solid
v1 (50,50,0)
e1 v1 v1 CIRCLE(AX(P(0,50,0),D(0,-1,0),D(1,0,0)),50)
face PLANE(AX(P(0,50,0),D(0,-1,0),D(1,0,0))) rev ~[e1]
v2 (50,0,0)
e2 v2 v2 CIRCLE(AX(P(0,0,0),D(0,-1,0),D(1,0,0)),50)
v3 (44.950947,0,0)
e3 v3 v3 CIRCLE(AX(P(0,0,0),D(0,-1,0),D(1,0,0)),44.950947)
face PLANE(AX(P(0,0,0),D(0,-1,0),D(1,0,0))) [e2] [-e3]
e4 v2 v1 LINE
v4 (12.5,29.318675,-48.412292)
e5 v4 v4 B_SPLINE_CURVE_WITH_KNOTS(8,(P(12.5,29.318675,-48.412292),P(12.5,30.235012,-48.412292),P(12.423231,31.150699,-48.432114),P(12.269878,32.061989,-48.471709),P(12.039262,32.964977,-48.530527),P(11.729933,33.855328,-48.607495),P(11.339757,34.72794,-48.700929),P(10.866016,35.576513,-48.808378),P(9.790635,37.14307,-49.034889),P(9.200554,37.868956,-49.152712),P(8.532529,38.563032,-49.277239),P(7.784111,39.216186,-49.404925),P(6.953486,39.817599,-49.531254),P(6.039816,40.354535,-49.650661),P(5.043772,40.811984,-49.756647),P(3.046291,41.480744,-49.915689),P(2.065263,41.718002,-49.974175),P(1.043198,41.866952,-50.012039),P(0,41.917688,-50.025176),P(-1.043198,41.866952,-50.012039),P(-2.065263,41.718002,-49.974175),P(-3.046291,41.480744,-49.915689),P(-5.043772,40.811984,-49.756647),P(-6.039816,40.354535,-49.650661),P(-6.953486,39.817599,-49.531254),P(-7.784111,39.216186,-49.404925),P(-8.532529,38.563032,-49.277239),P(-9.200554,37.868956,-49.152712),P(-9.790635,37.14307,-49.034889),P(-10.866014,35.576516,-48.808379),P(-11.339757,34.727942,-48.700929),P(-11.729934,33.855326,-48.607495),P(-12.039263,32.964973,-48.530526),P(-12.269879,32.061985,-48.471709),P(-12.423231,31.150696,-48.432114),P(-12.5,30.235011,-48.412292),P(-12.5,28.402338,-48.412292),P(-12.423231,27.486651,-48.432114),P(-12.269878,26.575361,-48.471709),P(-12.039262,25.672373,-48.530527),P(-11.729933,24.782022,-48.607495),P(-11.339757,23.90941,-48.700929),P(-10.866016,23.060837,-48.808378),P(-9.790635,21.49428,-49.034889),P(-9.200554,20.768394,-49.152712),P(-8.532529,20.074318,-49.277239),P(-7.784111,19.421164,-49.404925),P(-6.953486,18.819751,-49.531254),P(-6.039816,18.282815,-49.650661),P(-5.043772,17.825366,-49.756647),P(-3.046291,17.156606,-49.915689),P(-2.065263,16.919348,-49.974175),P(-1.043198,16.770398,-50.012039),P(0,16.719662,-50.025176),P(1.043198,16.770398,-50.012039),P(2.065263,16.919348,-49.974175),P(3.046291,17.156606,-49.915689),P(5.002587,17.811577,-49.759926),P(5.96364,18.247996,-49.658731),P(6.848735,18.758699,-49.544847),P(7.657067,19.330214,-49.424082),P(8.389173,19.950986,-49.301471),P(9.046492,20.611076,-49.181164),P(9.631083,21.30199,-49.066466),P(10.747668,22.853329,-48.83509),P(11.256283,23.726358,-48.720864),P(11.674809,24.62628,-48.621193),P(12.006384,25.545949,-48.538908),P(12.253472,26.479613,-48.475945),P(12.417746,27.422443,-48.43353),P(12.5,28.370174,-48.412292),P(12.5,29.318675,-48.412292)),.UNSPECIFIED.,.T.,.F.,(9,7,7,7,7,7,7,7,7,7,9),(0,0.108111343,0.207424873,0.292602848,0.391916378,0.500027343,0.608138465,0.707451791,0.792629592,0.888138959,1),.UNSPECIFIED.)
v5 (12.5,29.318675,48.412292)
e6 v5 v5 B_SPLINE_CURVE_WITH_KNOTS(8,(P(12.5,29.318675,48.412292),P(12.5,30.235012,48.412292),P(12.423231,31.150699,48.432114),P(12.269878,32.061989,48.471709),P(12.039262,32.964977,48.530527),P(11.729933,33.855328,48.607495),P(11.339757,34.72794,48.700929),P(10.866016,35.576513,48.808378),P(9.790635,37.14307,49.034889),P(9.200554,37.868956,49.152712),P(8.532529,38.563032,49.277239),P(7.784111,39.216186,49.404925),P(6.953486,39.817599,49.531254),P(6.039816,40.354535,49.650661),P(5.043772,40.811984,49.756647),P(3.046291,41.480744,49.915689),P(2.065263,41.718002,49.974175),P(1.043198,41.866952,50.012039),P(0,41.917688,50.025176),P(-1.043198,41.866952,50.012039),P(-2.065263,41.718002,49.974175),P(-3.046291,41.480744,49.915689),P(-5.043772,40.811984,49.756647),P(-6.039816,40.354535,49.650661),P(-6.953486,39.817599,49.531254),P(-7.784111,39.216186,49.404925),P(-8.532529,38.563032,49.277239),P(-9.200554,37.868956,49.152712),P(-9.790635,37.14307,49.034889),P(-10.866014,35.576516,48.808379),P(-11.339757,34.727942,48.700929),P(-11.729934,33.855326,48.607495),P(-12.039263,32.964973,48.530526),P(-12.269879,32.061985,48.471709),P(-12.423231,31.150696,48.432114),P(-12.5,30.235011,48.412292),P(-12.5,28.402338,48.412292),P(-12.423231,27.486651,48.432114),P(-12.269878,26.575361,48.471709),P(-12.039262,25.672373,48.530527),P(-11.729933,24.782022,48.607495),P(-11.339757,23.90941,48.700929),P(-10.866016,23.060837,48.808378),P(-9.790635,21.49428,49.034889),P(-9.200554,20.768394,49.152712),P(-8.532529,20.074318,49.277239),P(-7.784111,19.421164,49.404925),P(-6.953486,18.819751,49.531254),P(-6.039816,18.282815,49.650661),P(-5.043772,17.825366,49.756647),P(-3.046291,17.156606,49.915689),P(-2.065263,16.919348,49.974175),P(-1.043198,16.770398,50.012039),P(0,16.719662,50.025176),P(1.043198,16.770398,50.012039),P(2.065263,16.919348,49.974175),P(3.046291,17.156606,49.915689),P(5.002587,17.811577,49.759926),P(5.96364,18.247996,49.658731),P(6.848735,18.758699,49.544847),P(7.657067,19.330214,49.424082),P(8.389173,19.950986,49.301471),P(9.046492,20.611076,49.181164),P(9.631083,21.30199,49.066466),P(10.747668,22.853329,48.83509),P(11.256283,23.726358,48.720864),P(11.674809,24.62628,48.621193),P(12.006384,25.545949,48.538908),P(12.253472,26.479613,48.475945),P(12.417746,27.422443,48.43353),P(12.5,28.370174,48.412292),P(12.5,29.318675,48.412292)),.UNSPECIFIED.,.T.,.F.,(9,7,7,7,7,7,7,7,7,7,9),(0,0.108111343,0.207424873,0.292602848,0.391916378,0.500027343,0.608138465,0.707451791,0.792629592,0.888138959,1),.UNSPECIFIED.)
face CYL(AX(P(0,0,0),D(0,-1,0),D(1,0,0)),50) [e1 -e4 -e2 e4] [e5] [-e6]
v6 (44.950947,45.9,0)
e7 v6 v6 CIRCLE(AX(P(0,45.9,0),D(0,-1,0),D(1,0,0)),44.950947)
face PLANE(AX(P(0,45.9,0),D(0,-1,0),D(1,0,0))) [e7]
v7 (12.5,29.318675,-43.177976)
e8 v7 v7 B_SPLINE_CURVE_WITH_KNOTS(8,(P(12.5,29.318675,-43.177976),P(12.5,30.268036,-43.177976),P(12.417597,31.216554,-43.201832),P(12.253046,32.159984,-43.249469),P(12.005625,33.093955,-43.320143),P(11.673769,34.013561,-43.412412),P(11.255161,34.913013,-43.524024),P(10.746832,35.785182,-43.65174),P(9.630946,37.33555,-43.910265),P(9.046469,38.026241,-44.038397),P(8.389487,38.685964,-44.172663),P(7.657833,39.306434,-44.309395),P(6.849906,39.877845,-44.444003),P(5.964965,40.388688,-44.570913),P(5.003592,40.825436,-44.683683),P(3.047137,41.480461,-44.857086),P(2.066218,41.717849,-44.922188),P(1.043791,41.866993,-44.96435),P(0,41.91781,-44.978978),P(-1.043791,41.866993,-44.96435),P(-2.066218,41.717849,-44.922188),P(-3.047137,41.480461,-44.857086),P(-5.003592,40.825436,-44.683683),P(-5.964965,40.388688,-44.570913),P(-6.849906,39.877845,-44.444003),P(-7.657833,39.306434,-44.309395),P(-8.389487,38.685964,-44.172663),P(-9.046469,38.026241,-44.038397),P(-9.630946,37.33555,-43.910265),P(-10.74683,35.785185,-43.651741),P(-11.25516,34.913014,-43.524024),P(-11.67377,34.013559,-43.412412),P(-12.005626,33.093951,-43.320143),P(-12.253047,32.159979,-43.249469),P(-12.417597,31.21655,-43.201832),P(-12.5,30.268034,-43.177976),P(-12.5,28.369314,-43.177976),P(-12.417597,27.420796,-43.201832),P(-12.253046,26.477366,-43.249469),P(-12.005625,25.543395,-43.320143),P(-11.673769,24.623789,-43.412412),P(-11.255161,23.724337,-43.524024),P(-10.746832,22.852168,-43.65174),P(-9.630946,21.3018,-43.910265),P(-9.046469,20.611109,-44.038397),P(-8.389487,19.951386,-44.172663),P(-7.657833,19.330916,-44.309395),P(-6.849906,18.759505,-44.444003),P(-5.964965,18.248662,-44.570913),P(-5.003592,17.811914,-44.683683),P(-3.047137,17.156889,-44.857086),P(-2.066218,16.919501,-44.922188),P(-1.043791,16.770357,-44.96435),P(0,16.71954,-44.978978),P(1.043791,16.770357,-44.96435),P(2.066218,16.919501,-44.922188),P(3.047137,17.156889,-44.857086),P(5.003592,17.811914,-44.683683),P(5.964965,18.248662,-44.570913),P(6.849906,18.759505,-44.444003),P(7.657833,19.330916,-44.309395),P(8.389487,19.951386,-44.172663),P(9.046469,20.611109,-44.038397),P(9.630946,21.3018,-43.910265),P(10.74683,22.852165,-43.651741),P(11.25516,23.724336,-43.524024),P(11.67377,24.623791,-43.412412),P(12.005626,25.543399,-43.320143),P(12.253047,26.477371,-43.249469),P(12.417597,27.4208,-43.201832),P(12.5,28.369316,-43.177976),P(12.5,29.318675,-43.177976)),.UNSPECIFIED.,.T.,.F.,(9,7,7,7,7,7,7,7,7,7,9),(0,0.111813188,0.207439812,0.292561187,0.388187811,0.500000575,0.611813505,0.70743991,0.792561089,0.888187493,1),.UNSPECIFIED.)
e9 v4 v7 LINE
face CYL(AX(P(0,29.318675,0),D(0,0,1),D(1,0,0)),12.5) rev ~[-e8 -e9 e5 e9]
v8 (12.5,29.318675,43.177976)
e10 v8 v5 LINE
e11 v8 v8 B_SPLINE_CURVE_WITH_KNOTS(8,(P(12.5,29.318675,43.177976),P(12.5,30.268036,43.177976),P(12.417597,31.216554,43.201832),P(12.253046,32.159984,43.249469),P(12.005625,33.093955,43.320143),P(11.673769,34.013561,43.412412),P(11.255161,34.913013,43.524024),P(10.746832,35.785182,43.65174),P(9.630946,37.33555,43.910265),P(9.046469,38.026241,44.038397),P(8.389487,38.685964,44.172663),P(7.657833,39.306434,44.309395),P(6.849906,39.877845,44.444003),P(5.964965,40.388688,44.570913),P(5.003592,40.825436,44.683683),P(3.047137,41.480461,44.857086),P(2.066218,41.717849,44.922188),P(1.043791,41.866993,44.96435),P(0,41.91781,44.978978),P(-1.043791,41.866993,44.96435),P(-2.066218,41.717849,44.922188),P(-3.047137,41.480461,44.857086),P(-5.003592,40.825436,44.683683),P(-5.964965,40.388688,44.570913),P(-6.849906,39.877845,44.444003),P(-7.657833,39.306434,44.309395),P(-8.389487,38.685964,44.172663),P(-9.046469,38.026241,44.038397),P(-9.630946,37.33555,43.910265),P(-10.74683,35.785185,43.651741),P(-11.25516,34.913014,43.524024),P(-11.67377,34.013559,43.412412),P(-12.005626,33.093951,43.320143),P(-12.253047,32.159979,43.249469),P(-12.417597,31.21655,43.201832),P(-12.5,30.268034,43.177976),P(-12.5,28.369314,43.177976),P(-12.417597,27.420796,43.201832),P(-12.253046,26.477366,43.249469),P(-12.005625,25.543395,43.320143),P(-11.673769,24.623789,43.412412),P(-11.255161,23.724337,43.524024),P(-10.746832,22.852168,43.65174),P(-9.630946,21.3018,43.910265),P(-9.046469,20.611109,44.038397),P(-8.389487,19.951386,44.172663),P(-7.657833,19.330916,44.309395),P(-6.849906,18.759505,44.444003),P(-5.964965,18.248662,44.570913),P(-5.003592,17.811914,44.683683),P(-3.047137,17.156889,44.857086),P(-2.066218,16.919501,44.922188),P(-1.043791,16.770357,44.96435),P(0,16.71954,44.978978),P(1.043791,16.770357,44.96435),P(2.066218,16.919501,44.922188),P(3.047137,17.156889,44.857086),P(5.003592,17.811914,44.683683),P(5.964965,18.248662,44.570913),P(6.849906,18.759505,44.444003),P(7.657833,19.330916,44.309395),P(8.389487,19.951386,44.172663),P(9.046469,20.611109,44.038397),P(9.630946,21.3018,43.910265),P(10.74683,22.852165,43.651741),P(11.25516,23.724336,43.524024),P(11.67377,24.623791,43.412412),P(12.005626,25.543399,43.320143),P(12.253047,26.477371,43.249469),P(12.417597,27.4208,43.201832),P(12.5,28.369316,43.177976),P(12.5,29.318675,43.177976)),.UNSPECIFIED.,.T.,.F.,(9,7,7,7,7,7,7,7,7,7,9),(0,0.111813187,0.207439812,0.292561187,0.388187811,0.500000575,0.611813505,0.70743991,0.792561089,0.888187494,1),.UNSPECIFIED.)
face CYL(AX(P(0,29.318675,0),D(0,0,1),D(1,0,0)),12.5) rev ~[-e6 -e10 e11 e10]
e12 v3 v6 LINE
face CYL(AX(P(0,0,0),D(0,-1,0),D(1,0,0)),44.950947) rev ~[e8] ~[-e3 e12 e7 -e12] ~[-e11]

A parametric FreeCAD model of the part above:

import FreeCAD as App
import Part
import Sketcher
from FreeCAD import Vector

doc = App.newDocument("Part")
body = doc.addObject("PartDesign::Body", "Body")

sketch1 = body.newObject("Sketcher::SketchObject", "Sketch")
sketch1.AttachmentSupport = (doc.getObject("XZ_Plane"), [""])
sketch1.MapMode = "FlatFace"
sketch1.addGeometry(Part.Circle(Vector(0, 0, 0), Vector(0, 0, 1), 50), False)
sketch1.addConstraint([
    Sketcher.Constraint("Coincident", 0, 3, -1, 1),
    Sketcher.Constraint("Diameter", 0, 100.0),
])
pad1 = body.newObject("PartDesign::Pad", "Pad")
pad1.Profile = sketch1
pad1.Length = 50
pad1.Reversed = True

sketch2 = body.newObject("Sketcher::SketchObject", "Sketch001")
sketch2.AttachmentSupport = (doc.getObject("XY_Plane"), [""])
sketch2.MapMode = "FlatFace"
sketch2.addGeometry(Part.Circle(Vector(0, 29, 0), Vector(0, 0, 1), 12), False)
sketch2.addConstraint([
    Sketcher.Constraint("PointOnObject", 0, 3, -2),
    Sketcher.Constraint("Diameter", 0, 25.0),
    Sketcher.Constraint("DistanceY", -1, 1, 0, 3, 29.318675),
])
pocket1 = body.newObject("PartDesign::Pocket", "Pocket")
pocket1.Profile = sketch2
pocket1.Length = 208.4
pocket1.Midplane = True

sketch3 = body.newObject("Sketcher::SketchObject", "Sketch002")
sketch3.AttachmentSupport = (doc.getObject("XZ_Plane"), [""])
sketch3.MapMode = "FlatFace"
sketch3.addGeometry(Part.Circle(Vector(0, 0, 0), Vector(0, 0, 1), 45), False)
sketch3.addConstraint([
    Sketcher.Constraint("Coincident", 0, 3, -1, 1),
    Sketcher.Constraint("Diameter", 0, 89.901894),
])
pocket2 = body.newObject("PartDesign::Pocket", "Pocket001")
pocket2.Profile = sketch3
pocket2.Length = 45.9

doc.recompute()
